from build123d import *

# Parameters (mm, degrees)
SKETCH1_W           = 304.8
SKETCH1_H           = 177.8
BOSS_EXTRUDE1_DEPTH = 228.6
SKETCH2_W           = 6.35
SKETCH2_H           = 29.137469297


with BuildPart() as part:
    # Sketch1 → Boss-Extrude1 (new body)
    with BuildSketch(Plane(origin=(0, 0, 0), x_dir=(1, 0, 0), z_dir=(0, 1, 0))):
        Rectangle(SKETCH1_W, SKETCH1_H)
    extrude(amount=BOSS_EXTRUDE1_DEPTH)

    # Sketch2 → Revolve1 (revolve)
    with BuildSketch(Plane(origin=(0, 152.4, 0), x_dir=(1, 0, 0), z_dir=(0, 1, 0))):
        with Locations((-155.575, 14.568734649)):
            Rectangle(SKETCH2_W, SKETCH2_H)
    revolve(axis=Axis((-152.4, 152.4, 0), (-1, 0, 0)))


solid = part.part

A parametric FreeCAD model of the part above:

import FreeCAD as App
import Part
import Sketcher
from FreeCAD import Vector
Q = App.Units.Quantity


def add_polygon(sketch, points):
    """Adds a closed chain of lines whose ends are joined by coincident constraints."""
    first, n = sketch.GeometryCount, len(points)
    for a, b in zip(points, points[1:] + points[:1]):
        sketch.addGeometry(Part.LineSegment(App.Vector(*a, 0), App.Vector(*b, 0)), False)
    for i in range(n):
        sketch.addConstraint(Sketcher.Constraint("Coincident", first + i, 2, first + (i + 1) % n, 1))

doc = App.newDocument("Part")
body = doc.addObject("PartDesign::Body", "Body")

# Sketch on XZ plane
sketch1 = doc.addObject("Sketcher::SketchObject", "Sketch")
body.addObject(sketch1)
sketch1.AttachmentSupport = (doc.XZ_Plane, [""])
sketch1.MapMode = "FlatFace"
add_polygon(sketch1, [(-152.4, -88.9), (-152.4, 88.9), (152.4, 88.9), (152.4, -88.9)])  # lines 0-3
sketch1.addConstraint([
    Sketcher.Constraint("Vertical", 0),
    Sketcher.Constraint("Horizontal", 1),
    Sketcher.Constraint("Vertical", 2),
    Sketcher.Constraint("Horizontal", 3),
    Sketcher.Constraint("Symmetric", 0, 2, 2, 2, -1, 1),
    Sketcher.Constraint("DistanceX", 1, 1, 1, 2, Q("12 in")),
    Sketcher.Constraint("DistanceY", 0, 1, 0, 2, Q("7 in")),
])
pad1 = doc.addObject("PartDesign::Pad", "Pad")
body.addObject(pad1)
pad1.Profile = sketch1
pad1.Length = Q("9 in")
pad1.Reversed = True

# Sketch on XZ plane
sketch2 = doc.addObject("Sketcher::SketchObject", "Sketch001")
body.addObject(sketch2)
sketch2.AttachmentSupport = (doc.XZ_Plane, [""])
sketch2.MapMode = "FlatFace"
sketch2.AttachmentOffset = App.Placement(Vector(0, 0, -6 * 25.4), App.Rotation())
add_polygon(sketch2, [(-158.75, -29.137469), (-158.75, 0), (-152.4, 0), (-152.4, -29.137469)])  # lines 0-3
sketch2.addConstraint([
    Sketcher.Constraint("Vertical", 0),
    Sketcher.Constraint("Horizontal", 1),
    Sketcher.Constraint("Vertical", 2),
    Sketcher.Constraint("Horizontal", 3),
    Sketcher.Constraint("PointOnObject", 0, 2, -1),
    Sketcher.Constraint("DistanceX", 1, 2, -1, 1, Q("6 in")),
    Sketcher.Constraint("DistanceX", 1, 1, 1, 2, Q("0.25 in")),
    Sketcher.Constraint("DistanceY", 0, 1, 0, 2, Q("29.137469 mm")),
])
revolution = doc.addObject("PartDesign::Revolution", "Revolution")
body.addObject(revolution)
revolution.Profile = sketch2
revolution.ReferenceAxis = (sketch2, ["H_Axis"])
revolution.Angle = 360

doc.recompute()
